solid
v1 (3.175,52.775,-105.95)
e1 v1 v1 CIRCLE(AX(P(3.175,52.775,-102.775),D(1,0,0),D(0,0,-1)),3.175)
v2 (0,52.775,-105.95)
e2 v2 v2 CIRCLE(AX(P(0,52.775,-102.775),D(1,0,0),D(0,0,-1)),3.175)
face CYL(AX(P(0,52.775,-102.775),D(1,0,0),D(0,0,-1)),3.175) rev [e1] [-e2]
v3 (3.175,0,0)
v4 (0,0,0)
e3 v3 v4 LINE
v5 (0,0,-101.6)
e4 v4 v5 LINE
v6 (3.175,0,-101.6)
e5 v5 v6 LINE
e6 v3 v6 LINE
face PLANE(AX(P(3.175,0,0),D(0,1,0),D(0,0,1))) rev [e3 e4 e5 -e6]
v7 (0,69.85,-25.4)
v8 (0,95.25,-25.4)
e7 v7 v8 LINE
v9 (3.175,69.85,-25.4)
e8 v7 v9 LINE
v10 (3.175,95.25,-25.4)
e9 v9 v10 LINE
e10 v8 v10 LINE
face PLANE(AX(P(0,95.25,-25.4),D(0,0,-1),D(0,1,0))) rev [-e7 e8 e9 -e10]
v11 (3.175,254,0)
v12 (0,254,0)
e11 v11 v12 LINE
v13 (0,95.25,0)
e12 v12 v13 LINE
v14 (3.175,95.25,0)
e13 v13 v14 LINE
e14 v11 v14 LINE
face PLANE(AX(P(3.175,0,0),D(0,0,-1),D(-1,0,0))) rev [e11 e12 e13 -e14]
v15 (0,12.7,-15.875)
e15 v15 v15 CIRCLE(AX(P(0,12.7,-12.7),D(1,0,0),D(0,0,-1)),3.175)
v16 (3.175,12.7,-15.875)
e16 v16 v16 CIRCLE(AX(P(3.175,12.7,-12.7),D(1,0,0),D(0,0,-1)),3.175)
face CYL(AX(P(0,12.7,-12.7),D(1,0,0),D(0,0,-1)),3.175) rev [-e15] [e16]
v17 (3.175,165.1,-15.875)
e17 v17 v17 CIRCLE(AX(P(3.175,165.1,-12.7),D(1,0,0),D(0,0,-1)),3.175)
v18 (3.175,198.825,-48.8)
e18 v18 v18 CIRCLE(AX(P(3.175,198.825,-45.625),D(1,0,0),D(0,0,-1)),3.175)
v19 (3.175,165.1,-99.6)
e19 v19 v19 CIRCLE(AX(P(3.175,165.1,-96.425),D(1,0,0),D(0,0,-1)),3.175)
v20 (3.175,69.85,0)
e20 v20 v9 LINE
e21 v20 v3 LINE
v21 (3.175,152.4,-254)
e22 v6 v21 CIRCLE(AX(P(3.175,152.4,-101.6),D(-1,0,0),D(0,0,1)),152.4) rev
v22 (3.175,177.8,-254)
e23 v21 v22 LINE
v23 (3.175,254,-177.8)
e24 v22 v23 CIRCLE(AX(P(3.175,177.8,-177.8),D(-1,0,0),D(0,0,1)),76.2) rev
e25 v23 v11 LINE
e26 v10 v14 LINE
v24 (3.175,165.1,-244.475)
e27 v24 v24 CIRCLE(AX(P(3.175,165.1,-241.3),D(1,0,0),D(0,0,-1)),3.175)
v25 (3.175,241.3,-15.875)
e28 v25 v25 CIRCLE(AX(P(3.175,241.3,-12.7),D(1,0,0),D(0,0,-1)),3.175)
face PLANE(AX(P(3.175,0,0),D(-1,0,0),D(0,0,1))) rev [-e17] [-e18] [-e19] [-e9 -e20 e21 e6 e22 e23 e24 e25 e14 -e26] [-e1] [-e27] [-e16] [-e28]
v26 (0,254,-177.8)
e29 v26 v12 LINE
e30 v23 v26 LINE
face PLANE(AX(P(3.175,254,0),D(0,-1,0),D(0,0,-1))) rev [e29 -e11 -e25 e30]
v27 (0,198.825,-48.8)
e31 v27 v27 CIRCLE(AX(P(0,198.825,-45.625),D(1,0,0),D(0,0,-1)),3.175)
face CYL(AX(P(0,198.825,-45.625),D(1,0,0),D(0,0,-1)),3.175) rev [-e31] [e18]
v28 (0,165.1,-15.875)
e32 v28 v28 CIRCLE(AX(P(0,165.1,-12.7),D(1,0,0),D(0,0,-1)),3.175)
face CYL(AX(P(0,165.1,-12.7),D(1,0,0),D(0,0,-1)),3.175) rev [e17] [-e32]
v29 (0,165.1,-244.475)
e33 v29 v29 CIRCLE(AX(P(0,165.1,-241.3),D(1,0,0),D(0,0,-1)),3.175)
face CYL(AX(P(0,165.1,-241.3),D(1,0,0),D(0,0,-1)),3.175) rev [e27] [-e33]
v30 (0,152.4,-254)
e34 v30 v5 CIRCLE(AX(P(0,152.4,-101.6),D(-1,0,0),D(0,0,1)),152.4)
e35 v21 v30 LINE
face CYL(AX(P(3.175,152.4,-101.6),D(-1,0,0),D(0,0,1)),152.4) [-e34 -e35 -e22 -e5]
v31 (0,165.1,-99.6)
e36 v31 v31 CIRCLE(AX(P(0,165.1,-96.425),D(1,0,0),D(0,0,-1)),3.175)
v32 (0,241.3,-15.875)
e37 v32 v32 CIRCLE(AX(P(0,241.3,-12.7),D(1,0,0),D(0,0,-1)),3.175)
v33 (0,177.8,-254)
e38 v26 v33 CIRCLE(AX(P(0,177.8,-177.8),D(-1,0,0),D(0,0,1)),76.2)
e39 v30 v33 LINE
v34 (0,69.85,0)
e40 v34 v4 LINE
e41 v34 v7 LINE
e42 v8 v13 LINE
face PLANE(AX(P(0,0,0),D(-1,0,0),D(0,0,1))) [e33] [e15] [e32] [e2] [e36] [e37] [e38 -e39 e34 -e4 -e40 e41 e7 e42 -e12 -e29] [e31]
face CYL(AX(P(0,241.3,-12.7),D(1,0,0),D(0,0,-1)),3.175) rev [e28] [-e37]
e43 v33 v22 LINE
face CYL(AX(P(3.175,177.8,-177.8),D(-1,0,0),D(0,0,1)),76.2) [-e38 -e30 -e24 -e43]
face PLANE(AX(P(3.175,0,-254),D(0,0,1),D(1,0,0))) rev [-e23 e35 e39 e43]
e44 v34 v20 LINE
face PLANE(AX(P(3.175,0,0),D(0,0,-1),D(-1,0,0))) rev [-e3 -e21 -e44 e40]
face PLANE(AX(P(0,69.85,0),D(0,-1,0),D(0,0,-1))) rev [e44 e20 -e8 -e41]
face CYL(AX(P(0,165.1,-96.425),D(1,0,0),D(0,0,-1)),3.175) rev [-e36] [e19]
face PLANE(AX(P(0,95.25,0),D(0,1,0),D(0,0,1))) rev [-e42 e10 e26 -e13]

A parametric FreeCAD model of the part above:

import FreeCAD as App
import Part
import Sketcher
from FreeCAD import Vector
Q = App.Units.Quantity


def edges_at(feature, points):
    """Names of the edges that pass closest to the given points."""
    edges = feature.Shape.Edges
    near = lambda p: min(range(len(edges)), key=lambda i: edges[i].distToShape(Part.Vertex(*p))[0])
    return sorted({f"Edge{near(p) + 1}" for p in points})

doc = App.newDocument("Part")
body = doc.addObject("PartDesign::Body", "Body")

# Sketch on YZ plane
sketch1 = doc.addObject("Sketcher::SketchObject", "Sketch")
body.addObject(sketch1)
sketch1.AttachmentSupport = (doc.YZ_Plane, [""])
sketch1.MapMode = "FlatFace"
sketch1.addGeometry([
    Part.LineSegment(Vector(254, 0, 0), Vector(0, 0, 0)),
    Part.LineSegment(Vector(0, 0, 0), Vector(0, -254, 0)),
    Part.LineSegment(Vector(0, -254, 0), Vector(254, -254, 0)),
    Part.LineSegment(Vector(254, -254, 0), Vector(254, 0, 0)),
], False)
sketch1.addConstraint([
    Sketcher.Constraint("Coincident", 0, 2, 1, 1),
    Sketcher.Constraint("Coincident", 1, 2, 2, 1),
    Sketcher.Constraint("Coincident", 2, 2, 3, 1),
    Sketcher.Constraint("Coincident", 3, 2, 0, 1),
    Sketcher.Constraint("Horizontal", 0),
    Sketcher.Constraint("Vertical", 1),
    Sketcher.Constraint("Horizontal", 2),
    Sketcher.Constraint("Vertical", 3),
    Sketcher.Constraint("Coincident", 0, 2, -1, 1),
    Sketcher.Constraint("Equal", 2, 1),
    Sketcher.Constraint("DistanceX", 0, 2, 0, 1, Q("10 in")),
])
pad1 = doc.addObject("PartDesign::Pad", "Pad")
body.addObject(pad1)
pad1.Profile = sketch1
pad1.Length = Q("0.125 in")

# Sketch on YZ plane
sketch2 = doc.addObject("Sketcher::SketchObject", "Sketch001")
body.addObject(sketch2)
sketch2.AttachmentSupport = (doc.YZ_Plane, [""])
sketch2.MapMode = "FlatFace"
sketch2.AttachmentOffset = App.Placement(Vector(0, 0, 0.125 * 25.4), App.Rotation())
sketch2.addGeometry([
    Part.Circle(Vector(52.8, -102.8, 0), Vector(0, 0, 1), 3.2),  # 0
    Part.Circle(Vector(165.1, -96.4, 0), Vector(0, 0, 1), 3.2),  # 1
    Part.Circle(Vector(198.8, -45.6, 0), Vector(0, 0, 1), 3.2),  # 2
    Part.Circle(Vector(165.1, -12.7, 0), Vector(0, 0, 1), 3.2),  # 3
    Part.Circle(Vector(241.3, -12.7, 0), Vector(0, 0, 1), 3.2),  # 4
    Part.Circle(Vector(12.7, -12.7, 0), Vector(0, 0, 1), 3.2),  # 5
    Part.Circle(Vector(165.1, -241.3, 0), Vector(0, 0, 1), 3.2),  # 6
    Part.LineSegment(Vector(95.2, 0, 0), Vector(69.8, 0, 0)),  # 7
    Part.LineSegment(Vector(69.8, 0, 0), Vector(69.8, -25.4, 0)),  # 8
    Part.LineSegment(Vector(69.8, -25.4, 0), Vector(95.2, -25.4, 0)),  # 9
    Part.LineSegment(Vector(95.2, -25.4, 0), Vector(95.2, 0, 0)),  # 10
], False)
sketch2.addConstraint([
    Sketcher.Constraint("Coincident", 7, 2, 8, 1),
    Sketcher.Constraint("Coincident", 8, 2, 9, 1),
    Sketcher.Constraint("Coincident", 9, 2, 10, 1),
    Sketcher.Constraint("Coincident", 10, 2, 7, 1),
    Sketcher.Constraint("Horizontal", 7),
    Sketcher.Constraint("Vertical", 8),
    Sketcher.Constraint("Horizontal", 9),
    Sketcher.Constraint("Vertical", 10),
    Sketcher.Constraint("Equal", 0, 1),
    Sketcher.Constraint("Equal", 1, 2),
    Sketcher.Constraint("Equal", 2, 3),
    Sketcher.Constraint("Equal", 3, 4),
    Sketcher.Constraint("Equal", 4, 5),
    Sketcher.Constraint("Equal", 5, 6),
    Sketcher.Constraint("PointOnObject", 7, 2, -1),
    Sketcher.Constraint("Horizontal", 3, 3, 4, 3),
    Sketcher.Constraint("Horizontal", 4, 3, 5, 3),
    Sketcher.Constraint("Vertical", 1, 3, 3, 3),
    Sketcher.Constraint("Vertical", 3, 3, 6, 3),
    Sketcher.Constraint("Equal", 9, 8),
    Sketcher.Constraint("Diameter", 0, Q("0.25 in")),
    Sketcher.Constraint("DistanceX", 7, 2, 7, 1, Q("1 in")),
    Sketcher.Constraint("DistanceY", 1, 3, 2, 3, Q("2 in")),
    Sketcher.Constraint("DistanceX", 3, 3, 4, 3, Q("3 in")),
    Sketcher.Constraint("DistanceX", 5, 3, 3, 3, Q("6 in")),
    Sketcher.Constraint("DistanceY", 6, 3, 3, 3, Q("9 in")),
    Sketcher.Constraint("DistanceX", -1, 1, 1, 3, Q("6.5 in")),
    Sketcher.Constraint("DistanceY", 3, 3, -1, 1, Q("0.5 in")),
    Sketcher.Constraint("DistanceX", -1, 1, 7, 2, Q("2.75 in")),
    Sketcher.Constraint("DistanceY", 0, 3, 1, 3, Q("0.25 in")),
    Sketcher.Constraint("DistanceX", 0, 3, 2, 3, Q("5.75 in")),
    Sketcher.Constraint("DistanceX", -1, 1, 0, 3, Q("52.775 mm")),
    Sketcher.Constraint("DistanceY", 0, 3, -1, 1, Q("102.775 mm")),
])
pocket1 = doc.addObject("PartDesign::Pocket", "Pocket")
body.addObject(pocket1)
pocket1.Profile = sketch2
pocket1.Type = "ThroughAll"
doc.recompute()

fillet = doc.addObject("PartDesign::Fillet", "Fillet")
body.addObject(fillet)
fillet.Base = (pocket1, edges_at(pocket1, [(1.587, 0, -254)]))
fillet.Radius = Q("6 in")
doc.recompute()

fillet2 = doc.addObject("PartDesign::Fillet", "Fillet001")
body.addObject(fillet2)
fillet2.Base = (fillet, edges_at(fillet, [(1.587, 254, -254)]))
fillet2.Radius = Q("3 in")

doc.recompute()
